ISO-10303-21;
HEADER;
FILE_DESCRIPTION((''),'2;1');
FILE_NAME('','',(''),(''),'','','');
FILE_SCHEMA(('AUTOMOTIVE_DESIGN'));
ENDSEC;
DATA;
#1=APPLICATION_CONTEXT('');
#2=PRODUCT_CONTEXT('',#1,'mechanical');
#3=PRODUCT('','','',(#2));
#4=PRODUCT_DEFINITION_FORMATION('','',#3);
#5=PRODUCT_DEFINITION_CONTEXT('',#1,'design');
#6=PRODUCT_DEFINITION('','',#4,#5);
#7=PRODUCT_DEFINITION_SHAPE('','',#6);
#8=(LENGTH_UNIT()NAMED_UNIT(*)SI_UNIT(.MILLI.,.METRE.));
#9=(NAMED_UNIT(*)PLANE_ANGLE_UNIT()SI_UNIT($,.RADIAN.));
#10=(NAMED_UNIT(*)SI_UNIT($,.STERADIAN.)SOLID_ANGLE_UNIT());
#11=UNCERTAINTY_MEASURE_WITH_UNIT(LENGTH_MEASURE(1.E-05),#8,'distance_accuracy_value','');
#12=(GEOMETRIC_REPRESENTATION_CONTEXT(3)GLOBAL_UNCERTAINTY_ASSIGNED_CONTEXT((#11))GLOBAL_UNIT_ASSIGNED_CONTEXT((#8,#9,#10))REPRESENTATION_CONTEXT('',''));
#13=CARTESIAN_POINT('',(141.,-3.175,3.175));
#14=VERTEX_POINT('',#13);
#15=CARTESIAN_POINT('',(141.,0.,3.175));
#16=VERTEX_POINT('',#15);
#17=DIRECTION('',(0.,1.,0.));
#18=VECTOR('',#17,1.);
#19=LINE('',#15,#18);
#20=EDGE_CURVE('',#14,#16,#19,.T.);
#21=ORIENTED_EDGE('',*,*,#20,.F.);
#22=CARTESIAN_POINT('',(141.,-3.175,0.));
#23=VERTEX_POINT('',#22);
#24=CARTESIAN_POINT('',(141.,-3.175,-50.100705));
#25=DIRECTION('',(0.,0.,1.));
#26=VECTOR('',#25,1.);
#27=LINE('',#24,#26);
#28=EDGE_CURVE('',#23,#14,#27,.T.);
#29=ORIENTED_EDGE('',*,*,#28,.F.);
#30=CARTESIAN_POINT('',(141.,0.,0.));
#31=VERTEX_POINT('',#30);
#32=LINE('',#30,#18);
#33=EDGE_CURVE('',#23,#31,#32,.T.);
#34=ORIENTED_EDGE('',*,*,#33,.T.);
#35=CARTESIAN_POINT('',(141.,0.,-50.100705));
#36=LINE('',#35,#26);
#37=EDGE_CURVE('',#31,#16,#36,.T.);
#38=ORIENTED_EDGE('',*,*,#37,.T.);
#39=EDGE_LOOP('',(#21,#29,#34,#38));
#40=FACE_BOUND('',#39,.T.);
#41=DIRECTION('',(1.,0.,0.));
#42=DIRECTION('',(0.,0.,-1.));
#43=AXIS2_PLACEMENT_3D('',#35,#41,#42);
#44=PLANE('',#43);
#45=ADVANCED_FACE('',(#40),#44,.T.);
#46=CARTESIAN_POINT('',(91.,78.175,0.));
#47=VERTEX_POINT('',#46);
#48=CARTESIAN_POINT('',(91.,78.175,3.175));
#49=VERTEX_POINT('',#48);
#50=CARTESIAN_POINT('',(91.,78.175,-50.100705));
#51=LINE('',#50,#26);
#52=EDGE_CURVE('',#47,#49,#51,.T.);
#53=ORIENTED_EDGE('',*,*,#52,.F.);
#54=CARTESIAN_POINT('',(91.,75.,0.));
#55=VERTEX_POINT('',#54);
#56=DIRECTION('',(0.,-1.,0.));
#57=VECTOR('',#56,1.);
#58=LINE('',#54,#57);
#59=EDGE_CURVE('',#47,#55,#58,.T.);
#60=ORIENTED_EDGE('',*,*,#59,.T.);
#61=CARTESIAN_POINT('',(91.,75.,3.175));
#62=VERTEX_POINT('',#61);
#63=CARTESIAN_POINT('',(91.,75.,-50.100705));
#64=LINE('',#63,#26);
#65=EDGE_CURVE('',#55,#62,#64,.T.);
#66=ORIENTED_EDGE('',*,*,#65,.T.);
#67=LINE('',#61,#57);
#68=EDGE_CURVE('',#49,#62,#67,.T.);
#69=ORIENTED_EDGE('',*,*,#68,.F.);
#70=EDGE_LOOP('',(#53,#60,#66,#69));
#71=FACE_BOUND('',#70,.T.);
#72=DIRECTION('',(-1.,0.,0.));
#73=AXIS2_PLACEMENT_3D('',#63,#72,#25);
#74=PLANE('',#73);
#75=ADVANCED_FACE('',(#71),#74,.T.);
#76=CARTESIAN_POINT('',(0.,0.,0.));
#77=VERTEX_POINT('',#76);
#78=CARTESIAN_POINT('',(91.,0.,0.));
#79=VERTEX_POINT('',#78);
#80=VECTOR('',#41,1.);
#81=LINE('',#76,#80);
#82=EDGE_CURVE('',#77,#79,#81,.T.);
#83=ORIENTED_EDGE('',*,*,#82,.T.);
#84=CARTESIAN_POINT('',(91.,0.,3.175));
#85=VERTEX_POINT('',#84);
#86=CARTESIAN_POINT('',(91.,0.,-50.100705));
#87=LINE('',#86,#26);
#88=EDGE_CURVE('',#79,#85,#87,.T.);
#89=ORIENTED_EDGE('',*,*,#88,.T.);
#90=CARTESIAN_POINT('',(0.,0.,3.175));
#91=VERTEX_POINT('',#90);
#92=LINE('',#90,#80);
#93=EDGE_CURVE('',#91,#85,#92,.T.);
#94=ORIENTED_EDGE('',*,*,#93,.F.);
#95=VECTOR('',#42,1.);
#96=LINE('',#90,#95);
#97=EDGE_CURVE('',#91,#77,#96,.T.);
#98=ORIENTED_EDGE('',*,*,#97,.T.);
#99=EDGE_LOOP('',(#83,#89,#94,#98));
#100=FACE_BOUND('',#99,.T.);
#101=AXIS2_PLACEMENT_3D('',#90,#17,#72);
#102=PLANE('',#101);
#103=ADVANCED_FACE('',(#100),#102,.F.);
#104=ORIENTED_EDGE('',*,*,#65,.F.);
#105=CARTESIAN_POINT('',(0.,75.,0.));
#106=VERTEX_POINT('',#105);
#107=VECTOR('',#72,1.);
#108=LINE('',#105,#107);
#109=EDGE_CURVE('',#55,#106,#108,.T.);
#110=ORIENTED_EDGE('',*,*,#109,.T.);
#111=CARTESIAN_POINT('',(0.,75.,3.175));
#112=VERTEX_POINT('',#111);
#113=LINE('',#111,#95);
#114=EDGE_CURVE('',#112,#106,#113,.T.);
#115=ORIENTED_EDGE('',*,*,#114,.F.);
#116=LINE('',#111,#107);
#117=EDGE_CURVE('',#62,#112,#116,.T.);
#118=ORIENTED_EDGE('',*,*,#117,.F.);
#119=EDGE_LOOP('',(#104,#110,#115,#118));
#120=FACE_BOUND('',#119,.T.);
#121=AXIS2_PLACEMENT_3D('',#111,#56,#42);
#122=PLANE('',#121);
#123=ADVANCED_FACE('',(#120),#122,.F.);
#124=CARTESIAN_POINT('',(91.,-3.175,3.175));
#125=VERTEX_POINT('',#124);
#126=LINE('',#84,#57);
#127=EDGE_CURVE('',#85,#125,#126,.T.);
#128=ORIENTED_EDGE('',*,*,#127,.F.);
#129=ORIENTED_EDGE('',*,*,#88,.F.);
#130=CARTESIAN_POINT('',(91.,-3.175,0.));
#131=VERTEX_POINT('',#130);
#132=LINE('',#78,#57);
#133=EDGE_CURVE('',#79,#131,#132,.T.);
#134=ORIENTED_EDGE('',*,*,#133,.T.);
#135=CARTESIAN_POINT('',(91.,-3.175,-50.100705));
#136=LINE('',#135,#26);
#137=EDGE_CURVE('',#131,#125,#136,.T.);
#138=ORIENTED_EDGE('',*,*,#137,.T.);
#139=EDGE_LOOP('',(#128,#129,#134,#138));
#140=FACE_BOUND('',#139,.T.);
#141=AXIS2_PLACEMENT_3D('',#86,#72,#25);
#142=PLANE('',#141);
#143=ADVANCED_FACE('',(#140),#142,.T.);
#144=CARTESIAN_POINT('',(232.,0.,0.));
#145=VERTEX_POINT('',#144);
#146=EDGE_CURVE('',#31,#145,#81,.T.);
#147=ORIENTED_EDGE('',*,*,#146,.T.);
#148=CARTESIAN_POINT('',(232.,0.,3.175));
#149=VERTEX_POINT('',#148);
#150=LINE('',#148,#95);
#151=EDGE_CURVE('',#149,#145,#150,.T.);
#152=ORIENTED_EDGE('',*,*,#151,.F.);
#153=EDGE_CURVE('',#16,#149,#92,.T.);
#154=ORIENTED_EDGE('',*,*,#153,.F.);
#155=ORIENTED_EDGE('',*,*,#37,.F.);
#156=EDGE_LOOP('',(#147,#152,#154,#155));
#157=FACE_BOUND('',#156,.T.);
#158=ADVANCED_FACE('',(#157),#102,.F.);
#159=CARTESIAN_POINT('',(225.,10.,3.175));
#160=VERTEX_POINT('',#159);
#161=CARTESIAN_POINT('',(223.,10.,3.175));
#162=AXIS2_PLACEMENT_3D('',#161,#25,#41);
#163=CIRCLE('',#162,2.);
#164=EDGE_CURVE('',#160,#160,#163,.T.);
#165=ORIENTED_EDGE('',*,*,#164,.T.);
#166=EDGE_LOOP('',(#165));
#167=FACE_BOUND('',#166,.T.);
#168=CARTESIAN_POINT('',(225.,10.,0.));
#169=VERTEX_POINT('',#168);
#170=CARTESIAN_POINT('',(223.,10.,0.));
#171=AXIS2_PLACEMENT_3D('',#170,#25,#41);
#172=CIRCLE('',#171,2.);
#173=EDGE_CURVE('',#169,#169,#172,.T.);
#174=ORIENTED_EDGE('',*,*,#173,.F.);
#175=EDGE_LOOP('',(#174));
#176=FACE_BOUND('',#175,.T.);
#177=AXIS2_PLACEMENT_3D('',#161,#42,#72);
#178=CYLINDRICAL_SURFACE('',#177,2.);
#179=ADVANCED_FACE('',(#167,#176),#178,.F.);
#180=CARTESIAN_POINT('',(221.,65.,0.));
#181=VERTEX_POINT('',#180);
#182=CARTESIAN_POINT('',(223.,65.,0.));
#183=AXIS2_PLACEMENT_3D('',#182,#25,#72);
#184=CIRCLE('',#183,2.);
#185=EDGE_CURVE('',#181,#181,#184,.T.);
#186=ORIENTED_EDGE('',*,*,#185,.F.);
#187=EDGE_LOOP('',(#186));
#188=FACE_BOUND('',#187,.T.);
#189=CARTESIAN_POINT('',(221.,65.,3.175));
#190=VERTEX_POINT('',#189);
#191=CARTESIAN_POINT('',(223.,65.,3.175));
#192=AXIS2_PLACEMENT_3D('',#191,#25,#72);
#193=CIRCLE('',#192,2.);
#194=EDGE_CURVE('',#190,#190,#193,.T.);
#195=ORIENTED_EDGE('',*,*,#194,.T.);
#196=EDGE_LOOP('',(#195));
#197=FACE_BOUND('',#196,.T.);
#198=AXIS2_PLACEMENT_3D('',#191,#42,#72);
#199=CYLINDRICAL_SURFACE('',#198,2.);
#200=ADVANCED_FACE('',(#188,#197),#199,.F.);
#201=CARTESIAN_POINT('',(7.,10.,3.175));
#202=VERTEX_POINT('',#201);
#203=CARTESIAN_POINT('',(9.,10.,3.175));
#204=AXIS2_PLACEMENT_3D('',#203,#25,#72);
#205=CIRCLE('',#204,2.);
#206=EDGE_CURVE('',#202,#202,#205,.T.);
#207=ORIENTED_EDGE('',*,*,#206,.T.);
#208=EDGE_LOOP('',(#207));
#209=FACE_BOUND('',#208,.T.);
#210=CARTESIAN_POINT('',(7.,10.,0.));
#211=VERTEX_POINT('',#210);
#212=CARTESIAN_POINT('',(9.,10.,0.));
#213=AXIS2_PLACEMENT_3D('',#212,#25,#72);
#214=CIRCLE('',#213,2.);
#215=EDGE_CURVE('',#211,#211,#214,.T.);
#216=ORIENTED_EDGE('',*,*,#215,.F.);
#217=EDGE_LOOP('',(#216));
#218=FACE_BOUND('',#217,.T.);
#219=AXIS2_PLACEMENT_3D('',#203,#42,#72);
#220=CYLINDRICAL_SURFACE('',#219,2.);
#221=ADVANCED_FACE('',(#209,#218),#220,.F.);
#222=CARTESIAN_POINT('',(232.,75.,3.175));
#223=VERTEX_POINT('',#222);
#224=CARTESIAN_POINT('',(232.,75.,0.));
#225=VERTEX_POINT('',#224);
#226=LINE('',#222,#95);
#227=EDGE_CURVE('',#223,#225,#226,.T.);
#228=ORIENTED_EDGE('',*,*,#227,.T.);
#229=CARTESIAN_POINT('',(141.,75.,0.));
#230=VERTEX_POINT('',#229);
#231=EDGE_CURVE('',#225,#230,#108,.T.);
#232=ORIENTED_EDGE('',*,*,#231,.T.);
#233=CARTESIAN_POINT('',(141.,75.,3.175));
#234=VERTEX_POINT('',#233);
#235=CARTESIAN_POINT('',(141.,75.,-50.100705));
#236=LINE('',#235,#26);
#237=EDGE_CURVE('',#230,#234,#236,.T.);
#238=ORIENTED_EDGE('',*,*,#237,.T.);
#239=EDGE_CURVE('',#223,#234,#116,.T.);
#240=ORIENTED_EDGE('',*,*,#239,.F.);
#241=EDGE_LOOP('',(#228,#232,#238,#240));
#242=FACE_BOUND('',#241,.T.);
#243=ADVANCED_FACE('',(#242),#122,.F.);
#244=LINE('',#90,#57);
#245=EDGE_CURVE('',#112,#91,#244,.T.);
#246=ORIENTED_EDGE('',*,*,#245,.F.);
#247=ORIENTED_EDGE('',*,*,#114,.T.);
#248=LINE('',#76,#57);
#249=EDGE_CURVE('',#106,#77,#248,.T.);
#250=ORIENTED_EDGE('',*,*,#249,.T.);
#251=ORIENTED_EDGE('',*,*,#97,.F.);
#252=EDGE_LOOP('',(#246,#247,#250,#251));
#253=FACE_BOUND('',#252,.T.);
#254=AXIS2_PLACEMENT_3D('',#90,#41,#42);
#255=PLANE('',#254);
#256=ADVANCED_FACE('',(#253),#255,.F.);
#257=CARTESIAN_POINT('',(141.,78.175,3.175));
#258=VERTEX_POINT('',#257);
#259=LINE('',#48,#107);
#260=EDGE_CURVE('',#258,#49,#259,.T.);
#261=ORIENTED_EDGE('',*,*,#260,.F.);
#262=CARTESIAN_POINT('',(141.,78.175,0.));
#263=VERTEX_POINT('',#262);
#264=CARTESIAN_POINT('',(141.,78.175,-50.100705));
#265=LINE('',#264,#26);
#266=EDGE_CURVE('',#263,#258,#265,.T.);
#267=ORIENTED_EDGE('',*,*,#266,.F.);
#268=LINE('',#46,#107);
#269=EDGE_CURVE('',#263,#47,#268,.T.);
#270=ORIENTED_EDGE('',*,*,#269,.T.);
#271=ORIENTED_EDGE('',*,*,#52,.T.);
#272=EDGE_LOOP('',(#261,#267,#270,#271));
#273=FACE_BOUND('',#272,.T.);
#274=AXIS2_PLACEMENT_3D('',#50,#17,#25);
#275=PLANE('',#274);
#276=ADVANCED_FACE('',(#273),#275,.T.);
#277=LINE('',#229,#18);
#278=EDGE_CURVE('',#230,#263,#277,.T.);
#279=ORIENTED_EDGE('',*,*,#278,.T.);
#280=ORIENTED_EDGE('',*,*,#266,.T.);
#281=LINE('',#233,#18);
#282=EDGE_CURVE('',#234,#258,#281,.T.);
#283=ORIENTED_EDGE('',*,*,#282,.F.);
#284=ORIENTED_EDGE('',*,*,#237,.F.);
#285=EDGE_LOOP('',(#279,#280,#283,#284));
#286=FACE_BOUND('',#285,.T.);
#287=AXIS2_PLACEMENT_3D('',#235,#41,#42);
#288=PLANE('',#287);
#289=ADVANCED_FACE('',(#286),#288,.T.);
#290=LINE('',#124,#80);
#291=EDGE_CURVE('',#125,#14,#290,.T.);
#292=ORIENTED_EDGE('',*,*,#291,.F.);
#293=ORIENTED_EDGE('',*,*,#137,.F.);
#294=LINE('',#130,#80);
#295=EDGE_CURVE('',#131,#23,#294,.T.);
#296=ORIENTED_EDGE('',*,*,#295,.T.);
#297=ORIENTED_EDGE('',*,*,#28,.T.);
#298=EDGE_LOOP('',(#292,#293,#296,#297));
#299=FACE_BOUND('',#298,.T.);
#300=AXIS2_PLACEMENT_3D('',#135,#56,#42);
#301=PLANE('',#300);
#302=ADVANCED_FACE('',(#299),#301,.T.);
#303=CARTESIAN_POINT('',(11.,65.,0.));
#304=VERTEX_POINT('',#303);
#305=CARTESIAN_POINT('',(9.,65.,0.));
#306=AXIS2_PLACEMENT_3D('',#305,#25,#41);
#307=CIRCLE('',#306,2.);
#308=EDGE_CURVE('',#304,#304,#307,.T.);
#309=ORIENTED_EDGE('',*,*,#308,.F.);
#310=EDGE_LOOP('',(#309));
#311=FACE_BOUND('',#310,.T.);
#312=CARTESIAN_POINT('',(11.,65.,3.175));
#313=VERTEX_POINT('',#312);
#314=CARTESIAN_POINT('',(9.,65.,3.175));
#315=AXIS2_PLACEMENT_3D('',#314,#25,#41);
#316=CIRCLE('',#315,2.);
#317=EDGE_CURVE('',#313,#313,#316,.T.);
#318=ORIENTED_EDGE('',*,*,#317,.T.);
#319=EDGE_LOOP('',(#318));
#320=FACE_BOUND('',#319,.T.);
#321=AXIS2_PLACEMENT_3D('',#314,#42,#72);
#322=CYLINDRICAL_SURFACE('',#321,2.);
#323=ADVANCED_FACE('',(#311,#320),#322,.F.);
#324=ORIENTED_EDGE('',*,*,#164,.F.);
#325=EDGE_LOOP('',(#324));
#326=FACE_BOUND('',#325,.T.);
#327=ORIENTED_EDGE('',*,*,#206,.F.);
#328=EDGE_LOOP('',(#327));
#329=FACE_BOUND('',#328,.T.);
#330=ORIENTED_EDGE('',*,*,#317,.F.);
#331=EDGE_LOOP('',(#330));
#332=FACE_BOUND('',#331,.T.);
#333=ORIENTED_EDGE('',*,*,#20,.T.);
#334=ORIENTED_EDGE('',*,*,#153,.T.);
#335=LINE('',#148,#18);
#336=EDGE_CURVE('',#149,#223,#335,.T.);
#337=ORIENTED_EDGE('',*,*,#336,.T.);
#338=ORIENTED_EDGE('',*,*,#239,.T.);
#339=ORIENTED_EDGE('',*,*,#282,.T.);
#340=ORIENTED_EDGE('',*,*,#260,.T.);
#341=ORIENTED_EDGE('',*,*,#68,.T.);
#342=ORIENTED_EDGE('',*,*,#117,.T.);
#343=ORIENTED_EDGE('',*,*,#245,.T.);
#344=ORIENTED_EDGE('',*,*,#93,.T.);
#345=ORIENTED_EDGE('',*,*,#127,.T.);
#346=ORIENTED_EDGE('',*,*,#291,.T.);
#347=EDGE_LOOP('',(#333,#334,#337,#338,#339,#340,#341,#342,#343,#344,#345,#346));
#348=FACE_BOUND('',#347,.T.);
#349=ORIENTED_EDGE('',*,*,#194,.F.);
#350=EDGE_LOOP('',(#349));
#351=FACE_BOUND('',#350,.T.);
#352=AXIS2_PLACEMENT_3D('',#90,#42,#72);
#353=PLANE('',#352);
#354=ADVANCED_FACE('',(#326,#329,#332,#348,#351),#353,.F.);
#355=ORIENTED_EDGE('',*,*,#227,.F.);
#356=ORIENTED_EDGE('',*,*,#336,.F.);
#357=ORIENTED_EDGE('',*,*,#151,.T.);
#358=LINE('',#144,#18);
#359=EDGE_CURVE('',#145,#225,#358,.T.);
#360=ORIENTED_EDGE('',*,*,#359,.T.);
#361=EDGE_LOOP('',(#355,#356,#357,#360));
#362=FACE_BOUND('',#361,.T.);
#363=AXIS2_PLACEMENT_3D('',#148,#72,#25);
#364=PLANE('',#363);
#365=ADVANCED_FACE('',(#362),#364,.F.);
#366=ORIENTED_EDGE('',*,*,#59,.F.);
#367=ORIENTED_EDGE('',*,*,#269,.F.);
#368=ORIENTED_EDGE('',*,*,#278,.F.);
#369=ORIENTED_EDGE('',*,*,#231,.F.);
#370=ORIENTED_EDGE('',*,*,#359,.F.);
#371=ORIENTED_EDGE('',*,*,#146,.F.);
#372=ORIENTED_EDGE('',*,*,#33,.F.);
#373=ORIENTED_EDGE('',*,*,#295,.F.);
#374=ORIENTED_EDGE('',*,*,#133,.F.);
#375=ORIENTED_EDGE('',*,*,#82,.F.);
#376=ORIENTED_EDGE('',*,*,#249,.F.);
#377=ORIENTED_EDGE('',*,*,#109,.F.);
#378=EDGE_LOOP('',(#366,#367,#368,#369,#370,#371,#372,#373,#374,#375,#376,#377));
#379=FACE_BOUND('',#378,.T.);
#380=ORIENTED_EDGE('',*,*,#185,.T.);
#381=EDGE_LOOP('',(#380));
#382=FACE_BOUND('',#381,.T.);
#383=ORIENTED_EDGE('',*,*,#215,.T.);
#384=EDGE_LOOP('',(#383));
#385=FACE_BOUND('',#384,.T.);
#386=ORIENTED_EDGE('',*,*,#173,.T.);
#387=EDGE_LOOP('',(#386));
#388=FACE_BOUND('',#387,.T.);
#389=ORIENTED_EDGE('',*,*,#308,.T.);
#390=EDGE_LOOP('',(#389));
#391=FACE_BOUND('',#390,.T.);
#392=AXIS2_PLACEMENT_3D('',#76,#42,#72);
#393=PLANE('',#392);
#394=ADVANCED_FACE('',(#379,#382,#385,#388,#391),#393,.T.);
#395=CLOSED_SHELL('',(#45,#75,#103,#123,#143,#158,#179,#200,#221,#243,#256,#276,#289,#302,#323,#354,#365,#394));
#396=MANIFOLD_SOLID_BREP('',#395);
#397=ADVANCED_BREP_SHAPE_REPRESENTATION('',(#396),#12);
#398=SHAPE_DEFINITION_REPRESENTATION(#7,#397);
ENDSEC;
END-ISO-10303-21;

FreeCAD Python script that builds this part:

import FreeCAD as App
import Part
import Sketcher

V = App.Vector


def add_polygon(sketch, points):
    """Adds a closed chain of lines whose ends are joined by coincident constraints."""
    first, n = sketch.GeometryCount, len(points)
    for a, b in zip(points, points[1:] + points[:1]):
        sketch.addGeometry(Part.LineSegment(App.Vector(*a, 0), App.Vector(*b, 0)), False)
    for i in range(n):
        sketch.addConstraint(Sketcher.Constraint("Coincident", first + i, 2, first + (i + 1) % n, 1))

doc = App.newDocument("Part")
body = doc.addObject("PartDesign::Body", "Body")

sketch1 = body.newObject("Sketcher::SketchObject", "Sketch")
sketch1.AttachmentSupport = (doc.getObject("XY_Plane"), [""])
sketch1.MapMode = "FlatFace"
add_polygon(sketch1, [(0, 75), (0, 0), (232, 0), (232, 75)])
sketch1.addGeometry(Part.Circle(V(9, 10, 0), V(0, 0, 1), 2), False)
sketch1.addGeometry(Part.Circle(V(223, 10, 0), V(0, 0, 1), 2), False)
sketch1.addGeometry(Part.Circle(V(9, 65, 0), V(0, 0, 1), 2), False)
sketch1.addGeometry(Part.Circle(V(223, 65, 0), V(0, 0, 1), 2), False)
sketch1.addConstraint(Sketcher.Constraint("Vertical", 0))
sketch1.addConstraint(Sketcher.Constraint("Horizontal", 1))
sketch1.addConstraint(Sketcher.Constraint("Vertical", 2))
sketch1.addConstraint(Sketcher.Constraint("Horizontal", 3))
sketch1.addConstraint(Sketcher.Constraint("Coincident", 0, 2, -1, 1))
sketch1.addConstraint(Sketcher.Constraint("Equal", 4, 5))
sketch1.addConstraint(Sketcher.Constraint("Equal", 5, 6))
sketch1.addConstraint(Sketcher.Constraint("Equal", 6, 7))
sketch1.addConstraint(Sketcher.Constraint("Horizontal", 4, 3, 5, 3))
sketch1.addConstraint(Sketcher.Constraint("Horizontal", 6, 3, 7, 3))
sketch1.addConstraint(Sketcher.Constraint("Vertical", 4, 3, 6, 3))
sketch1.addConstraint(Sketcher.Constraint("Vertical", 5, 3, 7, 3))
sketch1.addConstraint(Sketcher.Constraint("Diameter", 4, 4.0))
sketch1.addConstraint(Sketcher.Constraint("DistanceX", 1, 1, 1, 2, 232.0))
sketch1.addConstraint(Sketcher.Constraint("DistanceY", 0, 2, 0, 1, 75.0))
sketch1.addConstraint(Sketcher.Constraint("DistanceX", -1, 1, 4, 3, 9.0))
sketch1.addConstraint(Sketcher.Constraint("DistanceY", -1, 1, 4, 3, 10.0))
sketch1.addConstraint(Sketcher.Constraint("DistanceX", -1, 1, 5, 3, 223.0))
sketch1.addConstraint(Sketcher.Constraint("DistanceY", -1, 1, 6, 3, 65.0))
pad1 = body.newObject("PartDesign::Pad", "Pad")
pad1.Profile = sketch1
pad1.Length = 3.175

sketch2 = body.newObject("Sketcher::SketchObject", "Sketch001")
sketch2.AttachmentSupport = (doc.getObject("XY_Plane"), [""])
sketch2.MapMode = "FlatFace"
sketch2.AttachmentOffset = App.Placement(V(0, 0, 3.175), App.Rotation())
add_polygon(sketch2, [(91, 0), (91, -3.175), (141, -3.175), (141, 0)])
add_polygon(sketch2, [(91, 78.175), (91, 75), (141, 75), (141, 78.175)])
sketch2.addConstraint(Sketcher.Constraint("Vertical", 0))
sketch2.addConstraint(Sketcher.Constraint("Horizontal", 1))
sketch2.addConstraint(Sketcher.Constraint("Vertical", 2))
sketch2.addConstraint(Sketcher.Constraint("Horizontal", 3))
sketch2.addConstraint(Sketcher.Constraint("Vertical", 4))
sketch2.addConstraint(Sketcher.Constraint("Horizontal", 5))
sketch2.addConstraint(Sketcher.Constraint("Vertical", 6))
sketch2.addConstraint(Sketcher.Constraint("Horizontal", 7))
sketch2.addConstraint(Sketcher.Constraint("PointOnObject", 2, 2, -1))
sketch2.addConstraint(Sketcher.Constraint("Vertical", 3, 2, 4, 2))
sketch2.addConstraint(Sketcher.Constraint("Vertical", 2, 2, 5, 2))
sketch2.addConstraint(Sketcher.Constraint("Equal", 2, 4))
sketch2.addConstraint(Sketcher.Constraint("DistanceX", 1, 1, 1, 2, 50.0))
sketch2.addConstraint(Sketcher.Constraint("DistanceX", -1, 1, 0, 2, 91.0))
sketch2.addConstraint(Sketcher.Constraint("DistanceY", -1, 1, 4, 2, 75.0))
sketch2.addConstraint(Sketcher.Constraint("DistanceY", 0, 2, 0, 1, 3.175))
pad2 = body.newObject("PartDesign::Pad", "Pad001")
pad2.Profile = sketch2
pad2.Length = 3.175
pad2.Reversed = True

doc.recompute()
